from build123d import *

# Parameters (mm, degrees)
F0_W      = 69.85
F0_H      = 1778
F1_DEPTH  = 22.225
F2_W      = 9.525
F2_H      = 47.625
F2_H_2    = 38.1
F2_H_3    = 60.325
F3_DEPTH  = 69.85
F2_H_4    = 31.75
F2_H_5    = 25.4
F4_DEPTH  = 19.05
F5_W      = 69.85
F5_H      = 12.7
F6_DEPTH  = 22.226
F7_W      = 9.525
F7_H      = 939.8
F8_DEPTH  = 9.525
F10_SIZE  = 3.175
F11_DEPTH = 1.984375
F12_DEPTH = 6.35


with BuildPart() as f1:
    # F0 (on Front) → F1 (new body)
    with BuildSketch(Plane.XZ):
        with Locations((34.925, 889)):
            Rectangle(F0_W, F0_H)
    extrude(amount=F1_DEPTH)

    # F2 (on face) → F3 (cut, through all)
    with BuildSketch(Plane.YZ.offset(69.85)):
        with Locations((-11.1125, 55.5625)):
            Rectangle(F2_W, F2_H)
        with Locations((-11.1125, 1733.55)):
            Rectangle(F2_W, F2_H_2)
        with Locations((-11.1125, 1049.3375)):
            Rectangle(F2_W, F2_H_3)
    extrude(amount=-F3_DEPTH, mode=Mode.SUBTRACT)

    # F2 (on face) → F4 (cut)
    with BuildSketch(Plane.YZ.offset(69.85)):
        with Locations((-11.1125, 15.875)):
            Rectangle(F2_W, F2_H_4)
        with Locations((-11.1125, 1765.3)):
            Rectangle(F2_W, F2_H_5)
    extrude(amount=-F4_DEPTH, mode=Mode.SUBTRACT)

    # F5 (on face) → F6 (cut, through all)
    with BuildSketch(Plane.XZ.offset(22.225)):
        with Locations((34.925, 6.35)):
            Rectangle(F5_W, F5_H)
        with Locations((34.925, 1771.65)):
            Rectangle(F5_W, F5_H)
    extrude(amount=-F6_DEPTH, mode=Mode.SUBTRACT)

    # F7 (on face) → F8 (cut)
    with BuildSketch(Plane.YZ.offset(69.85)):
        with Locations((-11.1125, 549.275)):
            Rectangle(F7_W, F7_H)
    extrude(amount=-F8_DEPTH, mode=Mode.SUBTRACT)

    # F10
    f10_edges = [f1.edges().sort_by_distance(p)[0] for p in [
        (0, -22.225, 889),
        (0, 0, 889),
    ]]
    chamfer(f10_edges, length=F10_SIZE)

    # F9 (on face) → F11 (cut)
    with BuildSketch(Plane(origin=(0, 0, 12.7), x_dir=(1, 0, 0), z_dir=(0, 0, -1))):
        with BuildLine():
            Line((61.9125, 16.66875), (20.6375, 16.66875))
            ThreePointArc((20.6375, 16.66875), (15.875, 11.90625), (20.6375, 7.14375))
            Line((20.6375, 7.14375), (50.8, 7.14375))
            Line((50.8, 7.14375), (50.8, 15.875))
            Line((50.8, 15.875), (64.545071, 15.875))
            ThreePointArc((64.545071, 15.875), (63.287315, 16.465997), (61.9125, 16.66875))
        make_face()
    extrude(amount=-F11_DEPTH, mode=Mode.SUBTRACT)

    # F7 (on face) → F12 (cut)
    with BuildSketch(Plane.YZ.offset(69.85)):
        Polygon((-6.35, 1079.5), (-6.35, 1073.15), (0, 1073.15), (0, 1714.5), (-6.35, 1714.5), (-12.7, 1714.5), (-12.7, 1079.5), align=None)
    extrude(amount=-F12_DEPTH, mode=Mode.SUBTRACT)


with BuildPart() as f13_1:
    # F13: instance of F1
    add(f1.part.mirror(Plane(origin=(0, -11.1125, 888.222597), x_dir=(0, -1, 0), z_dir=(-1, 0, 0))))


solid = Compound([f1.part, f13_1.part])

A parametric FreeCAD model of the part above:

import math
import FreeCAD as App
import Part
import Sketcher
Q = App.Units.Quantity


def edges_at(feature, points):
    """Names of the edges that pass closest to the given points."""
    edges = feature.Shape.Edges
    near = lambda p: min(range(len(edges)), key=lambda i: edges[i].distToShape(Part.Vertex(*p))[0])
    return sorted({f"Edge{near(p) + 1}" for p in points})


def add_polygon(sketch, points):
    """Adds a closed chain of lines whose ends are joined by coincident constraints."""
    first, n = sketch.GeometryCount, len(points)
    for a, b in zip(points, points[1:] + points[:1]):
        sketch.addGeometry(Part.LineSegment(App.Vector(*a, 0), App.Vector(*b, 0)), False)
    for i in range(n):
        sketch.addConstraint(Sketcher.Constraint("Coincident", first + i, 2, first + (i + 1) % n, 1))

doc = App.newDocument("Part")
params = doc.addObject("Spreadsheet::Sheet", "Params")
for row, (alias, value) in enumerate([
    ("sketch1_height", "70 in"),
    ("sketch1_width", "2.75 in"),
    ("pad1_length", "0.875 in"),
    ("sketch2_height", "1.5 in"),
    ("sketch2_width", "0.375 in"),
    ("sketch2_height2", "1.875 in"),
    ("sketch2_height3", "2.375 in"),
    ("sketch3_height", "1 in"),
    ("sketch3_height2", "1.25 in"),
    ("sketch3_width", "0.375 in"),
    ("pocket2_length", "0.75 in"),
    ("sketch4_height", "0.5 in"),
    ("sketch4_width", "2.75 in"),
    ("sketch5_height", "37 in"),
    ("sketch5_width", "0.375 in"),
    ("pocket4_length", "0.375 in"),
    ("chamfer_size", "0.125 in"),
    ("sketch6_radius", "0.1875 in"),
    ("sketch6_width", "1.625 in"),
    ("sketch6_width2", "1.1875 in"),
    ("sketch6_height", "0.34375 in"),
    ("pocket5_length", "0.078125 in"),
    ("sketch7_height", "25 in"),
    ("sketch7_width", "0.5 in"),
    ("pocket6_length", "0.25 in"),
], start=1):
    params.set(f"A{row}", alias)
    params.set(f"B{row}", "=" + value)
    params.setAlias(f"B{row}", alias)

body = doc.addObject("PartDesign::Body", "Body")

# Sketch on XZ plane
sketch1 = doc.addObject("Sketcher::SketchObject", "Sketch")
body.addObject(sketch1)
sketch1.AttachmentSupport = (doc.XZ_Plane, [""])
sketch1.MapMode = "FlatFace"
add_polygon(sketch1, [(0, 1778), (0, 0), (70, 0), (70, 1778)])  # lines 0-3
sketch1.addConstraint(Sketcher.Constraint("Vertical", 0))
sketch1.addConstraint(Sketcher.Constraint("Horizontal", 1))
sketch1.addConstraint(Sketcher.Constraint("Vertical", 2))
sketch1.addConstraint(Sketcher.Constraint("Horizontal", 3))
sketch1.addConstraint(Sketcher.Constraint("Coincident", 0, 2, -1, 1))
sketch1.addConstraint(Sketcher.Constraint("DistanceY", 0, 2, 0, 1, Q("70 in")))
sketch1.addConstraint(Sketcher.Constraint("DistanceX", 1, 1, 1, 2, Q("2.75 in")))
sketch1.setExpression("Constraints[9]", "Params.sketch1_height")
sketch1.setExpression("Constraints[10]", "Params.sketch1_width")
pad1 = doc.addObject("PartDesign::Pad", "Pad")
body.addObject(pad1)
pad1.Profile = sketch1
pad1.setExpression("Length", "Params.pad1_length")

# Sketch on YZ plane
sketch2 = doc.addObject("Sketcher::SketchObject", "Sketch001")
body.addObject(sketch2)
sketch2.AttachmentSupport = (doc.YZ_Plane, [""])
sketch2.MapMode = "FlatFace"
sketch2.AttachmentOffset = App.Placement(App.Vector(0, 0, 2.75 * 25.4), App.Rotation())
add_polygon(sketch2, [(-16, 79), (-16, 32), (-6, 32), (-6, 79)])  # lines 0-3
add_polygon(sketch2, [(-16, 1753), (-16, 1714), (-6, 1714), (-6, 1753)])  # lines 4-7
add_polygon(sketch2, [(-16, 1080), (-16, 1019), (-6, 1019), (-6, 1080)])  # lines 8-11
sketch2.addConstraint(Sketcher.Constraint("Vertical", 0))
sketch2.addConstraint(Sketcher.Constraint("Horizontal", 1))
sketch2.addConstraint(Sketcher.Constraint("Vertical", 2))
sketch2.addConstraint(Sketcher.Constraint("Horizontal", 3))
sketch2.addConstraint(Sketcher.Constraint("Vertical", 4))
sketch2.addConstraint(Sketcher.Constraint("Horizontal", 5))
sketch2.addConstraint(Sketcher.Constraint("Vertical", 6))
sketch2.addConstraint(Sketcher.Constraint("Horizontal", 7))
sketch2.addConstraint(Sketcher.Constraint("Vertical", 8))
sketch2.addConstraint(Sketcher.Constraint("Horizontal", 9))
sketch2.addConstraint(Sketcher.Constraint("Vertical", 10))
sketch2.addConstraint(Sketcher.Constraint("Horizontal", 11))
sketch2.addConstraint(Sketcher.Constraint("Vertical", 3, 2, 4, 2))
sketch2.addConstraint(Sketcher.Constraint("Vertical", 2, 2, 5, 2))
sketch2.addConstraint(Sketcher.Constraint("Vertical", 7, 2, 8, 2))
sketch2.addConstraint(Sketcher.Constraint("Vertical", 6, 2, 9, 2))
sketch2.addConstraint(Sketcher.Constraint("DistanceY", 4, 2, 4, 1, Q("1.5 in")))
sketch2.addConstraint(Sketcher.Constraint("DistanceY", -1, 1, 6, 2, Q("69 in")))
sketch2.addConstraint(Sketcher.Constraint("DistanceY", 3, 2, 8, 2, Q("37 in")))
sketch2.addConstraint(Sketcher.Constraint("DistanceY", 10, 2, 5, 2, Q("25 in")))
sketch2.addConstraint(Sketcher.Constraint("DistanceX", 1, 1, 1, 2, Q("0.375 in")))
sketch2.addConstraint(Sketcher.Constraint("DistanceY", 0, 2, 0, 1, Q("1.875 in")))
sketch2.addConstraint(Sketcher.Constraint("DistanceY", 8, 2, 8, 1, Q("2.375 in")))
sketch2.addConstraint(Sketcher.Constraint("DistanceX", 1, 2, -1, 1, Q("0.25 in")))
sketch2.setExpression("Constraints[28]", "Params.sketch2_height")
sketch2.setExpression("Constraints[32]", "Params.sketch2_width")
sketch2.setExpression("Constraints[33]", "Params.sketch2_height2")
sketch2.setExpression("Constraints[34]", "Params.sketch2_height3")
pocket1 = doc.addObject("PartDesign::Pocket", "Pocket")
body.addObject(pocket1)
pocket1.Profile = sketch2
pocket1.Type = "ThroughAll"

# Sketch on YZ plane
sketch3 = doc.addObject("Sketcher::SketchObject", "Sketch002")
body.addObject(sketch3)
sketch3.AttachmentSupport = (doc.YZ_Plane, [""])
sketch3.MapMode = "FlatFace"
sketch3.AttachmentOffset = App.Placement(App.Vector(0, 0, 2.75 * 25.4), App.Rotation())
add_polygon(sketch3, [(-16, 32), (-16, 0), (-6, 0), (-6, 32)])  # lines 0-3
add_polygon(sketch3, [(-16, 1778), (-16, 1753), (-6, 1753), (-6, 1778)])  # lines 4-7
sketch3.addConstraint(Sketcher.Constraint("Vertical", 0))
sketch3.addConstraint(Sketcher.Constraint("Horizontal", 1))
sketch3.addConstraint(Sketcher.Constraint("Vertical", 2))
sketch3.addConstraint(Sketcher.Constraint("Horizontal", 3))
sketch3.addConstraint(Sketcher.Constraint("Vertical", 4))
sketch3.addConstraint(Sketcher.Constraint("Horizontal", 5))
sketch3.addConstraint(Sketcher.Constraint("Vertical", 6))
sketch3.addConstraint(Sketcher.Constraint("Horizontal", 7))
sketch3.addConstraint(Sketcher.Constraint("PointOnObject", 0, 2, -1))
sketch3.addConstraint(Sketcher.Constraint("Vertical", 3, 2, 4, 2))
sketch3.addConstraint(Sketcher.Constraint("Vertical", 2, 2, 5, 2))
sketch3.addConstraint(Sketcher.Constraint("DistanceY", 4, 2, 4, 1, Q("1 in")))
sketch3.addConstraint(Sketcher.Constraint("DistanceY", -1, 1, 4, 2, Q("69 in")))
sketch3.addConstraint(Sketcher.Constraint("DistanceY", 0, 2, 0, 1, Q("1.25 in")))
sketch3.addConstraint(Sketcher.Constraint("DistanceX", 1, 1, 1, 2, Q("0.375 in")))
sketch3.addConstraint(Sketcher.Constraint("DistanceX", 1, 2, -1, 1, Q("0.25 in")))
sketch3.setExpression("Constraints[19]", "Params.sketch3_height")
sketch3.setExpression("Constraints[21]", "Params.sketch3_height2")
sketch3.setExpression("Constraints[22]", "Params.sketch3_width")
pocket2 = doc.addObject("PartDesign::Pocket", "Pocket001")
body.addObject(pocket2)
pocket2.Profile = sketch3
pocket2.setExpression("Length", "Params.pocket2_length")

# Sketch on XZ plane
sketch4 = doc.addObject("Sketcher::SketchObject", "Sketch003")
body.addObject(sketch4)
sketch4.AttachmentSupport = (doc.XZ_Plane, [""])
sketch4.MapMode = "FlatFace"
sketch4.AttachmentOffset = App.Placement(App.Vector(0, 0, 0.875 * 25.4), App.Rotation())
add_polygon(sketch4, [(0, 13), (0, 0), (70, 0), (70, 13)])  # lines 0-3
add_polygon(sketch4, [(0, 1778), (0, 1765), (70, 1765), (70, 1778)])  # lines 4-7
sketch4.addConstraint(Sketcher.Constraint("Vertical", 0))
sketch4.addConstraint(Sketcher.Constraint("Horizontal", 1))
sketch4.addConstraint(Sketcher.Constraint("Vertical", 2))
sketch4.addConstraint(Sketcher.Constraint("Horizontal", 3))
sketch4.addConstraint(Sketcher.Constraint("Vertical", 4))
sketch4.addConstraint(Sketcher.Constraint("Horizontal", 5))
sketch4.addConstraint(Sketcher.Constraint("Vertical", 6))
sketch4.addConstraint(Sketcher.Constraint("Horizontal", 7))
sketch4.addConstraint(Sketcher.Constraint("Coincident", 0, 2, -1, 1))
sketch4.addConstraint(Sketcher.Constraint("PointOnObject", 4, 2, -2))
sketch4.addConstraint(Sketcher.Constraint("Vertical", 2, 2, 5, 2))
sketch4.addConstraint(Sketcher.Constraint("Equal", 2, 4))
sketch4.addConstraint(Sketcher.Constraint("DistanceY", 0, 2, 0, 1, Q("0.5 in")))
sketch4.addConstraint(Sketcher.Constraint("DistanceY", -1, 1, 6, 2, Q("70 in")))
sketch4.addConstraint(Sketcher.Constraint("DistanceX", 1, 1, 1, 2, Q("2.75 in")))
sketch4.setExpression("Constraints[20]", "Params.sketch4_height")
sketch4.setExpression("Constraints[22]", "Params.sketch4_width")
pocket3 = doc.addObject("PartDesign::Pocket", "Pocket002")
body.addObject(pocket3)
pocket3.Profile = sketch4
pocket3.Type = "ThroughAll"

# Sketch on YZ plane
sketch5 = doc.addObject("Sketcher::SketchObject", "Sketch004")
body.addObject(sketch5)
sketch5.AttachmentSupport = (doc.YZ_Plane, [""])
sketch5.MapMode = "FlatFace"
sketch5.AttachmentOffset = App.Placement(App.Vector(0, 0, 2.75 * 25.4), App.Rotation())
add_polygon(sketch5, [(-16, 1019), (-16, 79), (-6, 79), (-6, 1019)])  # lines 0-3
sketch5.addConstraint(Sketcher.Constraint("Vertical", 0))
sketch5.addConstraint(Sketcher.Constraint("Horizontal", 1))
sketch5.addConstraint(Sketcher.Constraint("Vertical", 2))
sketch5.addConstraint(Sketcher.Constraint("Horizontal", 3))
sketch5.addConstraint(Sketcher.Constraint("DistanceY", 0, 2, 0, 1, Q("37 in")))
sketch5.addConstraint(Sketcher.Constraint("DistanceX", 1, 1, 1, 2, Q("0.375 in")))
sketch5.addConstraint(Sketcher.Constraint("DistanceX", 1, 2, -1, 1, Q("0.25 in")))
sketch5.addConstraint(Sketcher.Constraint("DistanceY", -1, 1, 0, 2, Q("3.125 in")))
sketch5.setExpression("Constraints[8]", "Params.sketch5_height")
sketch5.setExpression("Constraints[9]", "Params.sketch5_width")
pocket4 = doc.addObject("PartDesign::Pocket", "Pocket003")
body.addObject(pocket4)
pocket4.Profile = sketch5
pocket4.setExpression("Length", "Params.pocket4_length")
doc.recompute()

chamfer = doc.addObject("PartDesign::Chamfer", "Chamfer")
body.addObject(chamfer)
chamfer.Base = (pocket4, edges_at(pocket4, [(0, -22.225, 889), (0, 0, 889)]))
chamfer.setExpression("Size", "Params.chamfer_size")

# Sketch on XY plane
sketch6 = doc.addObject("Sketcher::SketchObject", "Sketch005")
body.addObject(sketch6)
sketch6.AttachmentSupport = (doc.XY_Plane, [""])
sketch6.MapMode = "FlatFace"
sketch6.AttachmentOffset = App.Placement(App.Vector(0, 0, 0.5 * 25.4), App.Rotation())
sketch6.addGeometry(Part.LineSegment(App.Vector(61.9, -16.7, 0), App.Vector(20.6, -16.7, 0)), False)
sketch6.addGeometry(Part.ArcOfCircle(Part.Circle(App.Vector(20.6, -11.9, 0), App.Vector(0, 0, 1), 4.8), math.radians(90), math.radians(270)), False)
sketch6.addGeometry(Part.LineSegment(App.Vector(20.6, -7.1, 0), App.Vector(50.8, -7.1, 0)), False)
sketch6.addGeometry(Part.LineSegment(App.Vector(50.8, -7.1, 0), App.Vector(50.8, -15.9, 0)), False)
sketch6.addGeometry(Part.LineSegment(App.Vector(50.8, -15.9, 0), App.Vector(64.5, -15.9, 0)), False)
sketch6.addGeometry(Part.ArcOfCircle(Part.Circle(App.Vector(61.9, -11.9, 0), App.Vector(0, 0, 1), 4.8), math.radians(-90), math.radians(-56)), False)
sketch6.addConstraint(Sketcher.Constraint("Tangent", 0, 2, 1, 2))
sketch6.addConstraint(Sketcher.Constraint("Tangent", 1, 1, 2, 1))
sketch6.addConstraint(Sketcher.Constraint("Coincident", 2, 2, 3, 1))
sketch6.addConstraint(Sketcher.Constraint("Coincident", 3, 2, 4, 1))
sketch6.addConstraint(Sketcher.Constraint("Coincident", 4, 2, 5, 2))
sketch6.addConstraint(Sketcher.Constraint("Tangent", 5, 1, 0, 1))
sketch6.addConstraint(Sketcher.Constraint("Horizontal", 0))
sketch6.addConstraint(Sketcher.Constraint("Horizontal", 2))
sketch6.addConstraint(Sketcher.Constraint("Vertical", 3))
sketch6.addConstraint(Sketcher.Constraint("Horizontal", 4))
sketch6.addConstraint(Sketcher.Constraint("DistanceX", -1, 1, 2, 2, Q("2 in")))
sketch6.addConstraint(Sketcher.Constraint("Radius", 1, Q("0.1875 in")))
sketch6.addConstraint(Sketcher.Constraint("DistanceX", 0, 2, 0, 1, Q("1.625 in")))
sketch6.addConstraint(Sketcher.Constraint("DistanceX", 2, 1, 2, 2, Q("1.1875 in")))
sketch6.addConstraint(Sketcher.Constraint("DistanceY", 3, 2, 3, 1, Q("0.34375 in")))
sketch6.addConstraint(Sketcher.Constraint("DistanceY", 1, 3, -1, 1, Q("0.46875 in")))
sketch6.addConstraint(Sketcher.Constraint("Radius", 5, Q("4.762494 mm")))
sketch6.setExpression("Constraints[11]", "Params.sketch6_radius")
sketch6.setExpression("Constraints[12]", "Params.sketch6_width")
sketch6.setExpression("Constraints[13]", "Params.sketch6_width2")
sketch6.setExpression("Constraints[14]", "Params.sketch6_height")
pocket5 = doc.addObject("PartDesign::Pocket", "Pocket004")
body.addObject(pocket5)
pocket5.Profile = sketch6
pocket5.setExpression("Length", "Params.pocket5_length")
pocket5.Reversed = True

# Sketch on YZ plane
sketch7 = doc.addObject("Sketcher::SketchObject", "Sketch006")
body.addObject(sketch7)
sketch7.AttachmentSupport = (doc.YZ_Plane, [""])
sketch7.MapMode = "FlatFace"
sketch7.AttachmentOffset = App.Placement(App.Vector(0, 0, 2.75 * 25.4), App.Rotation())
add_polygon(sketch7, [(-6, 1080), (-6, 1073), (0, 1073), (0, 1714), (-13, 1714), (-13, 1080)])  # lines 0-5
sketch7.addConstraint(Sketcher.Constraint("Vertical", 0))
sketch7.addConstraint(Sketcher.Constraint("Horizontal", 1))
sketch7.addConstraint(Sketcher.Constraint("Vertical", 2))
sketch7.addConstraint(Sketcher.Constraint("Horizontal", 3))
sketch7.addConstraint(Sketcher.Constraint("Vertical", 4))
sketch7.addConstraint(Sketcher.Constraint("Horizontal", 5))
sketch7.addConstraint(Sketcher.Constraint("PointOnObject", 1, 2, -2))
sketch7.addConstraint(Sketcher.Constraint("Equal", 1, 5))
sketch7.addConstraint(Sketcher.Constraint("Equal", 5, 0))
sketch7.addConstraint(Sketcher.Constraint("DistanceY", 4, 2, 4, 1, Q("25 in")))
sketch7.addConstraint(Sketcher.Constraint("DistanceX", 3, 2, 3, 1, Q("0.5 in")))
sketch7.addConstraint(Sketcher.Constraint("DistanceY", -1, 1, 2, 2, Q("67.5 in")))
sketch7.setExpression("Constraints[15]", "Params.sketch7_height")
sketch7.setExpression("Constraints[16]", "Params.sketch7_width")
pocket6 = doc.addObject("PartDesign::Pocket", "Pocket005")
body.addObject(pocket6)
pocket6.Profile = sketch7
pocket6.setExpression("Length", "Params.pocket6_length")
body2 = doc.addObject("PartDesign::Body", "Body001")
doc.recompute()

mirroring = doc.addObject("Part::Mirroring", "Mirroring")
mirroring.Source = body
mirroring.Base = App.Vector(0, -11.1125, 888.222597)
mirroring.Normal = App.Vector(-1, 0, 0)
body2.BaseFeature = mirroring
doc.recompute()
mirroring.Visibility = False

doc.recompute()
